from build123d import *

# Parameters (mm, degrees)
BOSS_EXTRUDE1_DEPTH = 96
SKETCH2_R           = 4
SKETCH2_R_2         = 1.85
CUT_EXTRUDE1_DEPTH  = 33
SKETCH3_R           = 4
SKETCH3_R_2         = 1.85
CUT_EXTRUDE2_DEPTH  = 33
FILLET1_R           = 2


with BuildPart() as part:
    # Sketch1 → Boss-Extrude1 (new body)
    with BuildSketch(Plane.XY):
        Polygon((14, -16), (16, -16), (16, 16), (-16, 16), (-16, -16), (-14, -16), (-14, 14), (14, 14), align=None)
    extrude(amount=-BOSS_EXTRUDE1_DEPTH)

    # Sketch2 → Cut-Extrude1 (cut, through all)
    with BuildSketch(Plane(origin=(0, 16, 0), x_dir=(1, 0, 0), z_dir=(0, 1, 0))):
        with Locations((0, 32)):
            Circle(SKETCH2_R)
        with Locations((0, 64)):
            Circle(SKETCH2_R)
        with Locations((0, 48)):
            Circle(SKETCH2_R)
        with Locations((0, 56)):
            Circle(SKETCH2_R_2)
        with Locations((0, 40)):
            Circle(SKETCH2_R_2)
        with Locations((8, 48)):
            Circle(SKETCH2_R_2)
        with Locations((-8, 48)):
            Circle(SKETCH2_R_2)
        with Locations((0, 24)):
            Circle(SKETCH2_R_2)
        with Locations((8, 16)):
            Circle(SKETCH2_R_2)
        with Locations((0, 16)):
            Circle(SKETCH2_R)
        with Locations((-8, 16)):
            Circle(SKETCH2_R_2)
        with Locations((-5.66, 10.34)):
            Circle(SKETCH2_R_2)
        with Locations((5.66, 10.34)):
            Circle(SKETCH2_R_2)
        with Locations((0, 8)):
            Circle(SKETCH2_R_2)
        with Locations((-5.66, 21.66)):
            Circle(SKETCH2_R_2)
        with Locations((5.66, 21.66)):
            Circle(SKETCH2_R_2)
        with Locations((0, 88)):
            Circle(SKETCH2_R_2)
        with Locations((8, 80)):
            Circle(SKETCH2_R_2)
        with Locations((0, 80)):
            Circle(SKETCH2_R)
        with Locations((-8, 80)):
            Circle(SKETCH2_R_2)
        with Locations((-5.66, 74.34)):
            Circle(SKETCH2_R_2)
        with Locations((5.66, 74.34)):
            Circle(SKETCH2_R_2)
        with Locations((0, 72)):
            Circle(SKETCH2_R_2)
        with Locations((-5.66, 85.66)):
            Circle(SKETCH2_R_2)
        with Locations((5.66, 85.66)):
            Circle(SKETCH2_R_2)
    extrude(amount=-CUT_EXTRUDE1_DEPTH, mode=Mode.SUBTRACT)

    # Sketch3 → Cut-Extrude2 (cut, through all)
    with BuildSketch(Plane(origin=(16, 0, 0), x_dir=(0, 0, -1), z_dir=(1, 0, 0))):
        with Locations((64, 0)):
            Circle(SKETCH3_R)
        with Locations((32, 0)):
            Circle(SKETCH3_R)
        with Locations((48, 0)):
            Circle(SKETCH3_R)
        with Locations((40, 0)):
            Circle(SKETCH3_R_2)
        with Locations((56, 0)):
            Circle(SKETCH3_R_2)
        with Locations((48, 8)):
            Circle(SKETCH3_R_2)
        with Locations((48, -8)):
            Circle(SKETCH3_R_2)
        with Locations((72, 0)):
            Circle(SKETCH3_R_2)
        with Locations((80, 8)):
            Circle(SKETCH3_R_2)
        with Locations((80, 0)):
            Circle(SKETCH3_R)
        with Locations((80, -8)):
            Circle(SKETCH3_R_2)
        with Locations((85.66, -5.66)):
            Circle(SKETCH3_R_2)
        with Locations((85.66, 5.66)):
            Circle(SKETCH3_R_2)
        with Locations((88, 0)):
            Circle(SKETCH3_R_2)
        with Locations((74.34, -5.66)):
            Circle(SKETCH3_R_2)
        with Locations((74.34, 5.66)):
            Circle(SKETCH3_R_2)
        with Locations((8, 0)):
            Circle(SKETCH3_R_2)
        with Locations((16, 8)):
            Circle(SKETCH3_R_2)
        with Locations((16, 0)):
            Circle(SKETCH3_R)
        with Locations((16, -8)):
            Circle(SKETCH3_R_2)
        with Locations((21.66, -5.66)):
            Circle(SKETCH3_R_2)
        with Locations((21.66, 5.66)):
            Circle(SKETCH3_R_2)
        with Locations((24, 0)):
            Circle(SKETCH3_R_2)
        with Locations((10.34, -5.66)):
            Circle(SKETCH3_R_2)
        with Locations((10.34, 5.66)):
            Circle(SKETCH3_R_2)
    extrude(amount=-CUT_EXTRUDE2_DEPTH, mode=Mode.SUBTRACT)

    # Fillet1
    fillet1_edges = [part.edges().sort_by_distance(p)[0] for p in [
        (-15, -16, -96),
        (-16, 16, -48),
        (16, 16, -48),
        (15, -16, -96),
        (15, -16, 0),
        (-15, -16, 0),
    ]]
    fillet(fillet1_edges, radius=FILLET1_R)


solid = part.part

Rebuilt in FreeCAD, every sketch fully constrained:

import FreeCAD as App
import Part
import Sketcher

V = App.Vector
Q = App.Units.Quantity


def edges_at(feature, points):
    """Names of the edges that pass closest to the given points."""
    edges = feature.Shape.Edges
    near = lambda p: min(range(len(edges)), key=lambda i: edges[i].distToShape(Part.Vertex(*p))[0])
    return sorted({f"Edge{near(p) + 1}" for p in points})

doc = App.newDocument("Part")
body = doc.addObject("PartDesign::Body", "Body")

# Sketch on XY plane
sketch1 = body.newObject("Sketcher::SketchObject", "Sketch")
sketch1.AttachmentSupport = (doc.getObject("XY_Plane"), [""])
sketch1.MapMode = "FlatFace"
sketch1.addGeometry([
    Part.LineSegment(V(14, -16, 0), V(16, -16, 0)),  # 0
    Part.LineSegment(V(16, -16, 0), V(16, 16, 0)),  # 1
    Part.LineSegment(V(16, 16, 0), V(-16, 16, 0)),  # 2
    Part.LineSegment(V(-16, 16, 0), V(-16, -16, 0)),  # 3
    Part.LineSegment(V(-16, -16, 0), V(-14, -16, 0)),  # 4
    Part.LineSegment(V(-14, -16, 0), V(-14, 14, 0)),  # 5
    Part.LineSegment(V(-14, 14, 0), V(14, 14, 0)),  # 6
    Part.LineSegment(V(14, 14, 0), V(14, -16, 0)),  # 7
], False)
sketch1.addConstraint([
    Sketcher.Constraint("Coincident", 0, 2, 1, 1),
    Sketcher.Constraint("Coincident", 1, 2, 2, 1),
    Sketcher.Constraint("Coincident", 2, 2, 3, 1),
    Sketcher.Constraint("Coincident", 3, 2, 4, 1),
    Sketcher.Constraint("Coincident", 4, 2, 5, 1),
    Sketcher.Constraint("Coincident", 5, 2, 6, 1),
    Sketcher.Constraint("Coincident", 6, 2, 7, 1),
    Sketcher.Constraint("Coincident", 7, 2, 0, 1),
    Sketcher.Constraint("Horizontal", 0),
    Sketcher.Constraint("Vertical", 1),
    Sketcher.Constraint("Horizontal", 2),
    Sketcher.Constraint("Vertical", 3),
    Sketcher.Constraint("Horizontal", 4),
    Sketcher.Constraint("Vertical", 5),
    Sketcher.Constraint("Horizontal", 6),
    Sketcher.Constraint("Vertical", 7),
    Sketcher.Constraint("Symmetric", 0, 2, 2, 2, -1, 1),
    Sketcher.Constraint("Symmetric", 4, 2, 7, 2, -2),
    Sketcher.Constraint("Equal", 2, 1),
    Sketcher.Constraint("DistanceX", 0, 1, 0, 2, Q("2 mm")),
    Sketcher.Constraint("DistanceX", 2, 2, 2, 1, Q("32 mm")),
    Sketcher.Constraint("DistanceY", 5, 1, 5, 2, Q("30 mm")),
])
pad1 = body.newObject("PartDesign::Pad", "Pad")
pad1.Profile = sketch1
pad1.Length = 96
pad1.Reversed = True

# Sketch on XZ plane
sketch2 = body.newObject("Sketcher::SketchObject", "Sketch001")
sketch2.AttachmentSupport = (doc.getObject("XZ_Plane"), [""])
sketch2.MapMode = "FlatFace"
sketch2.AttachmentOffset = App.Placement(V(0, 0, -16), App.Rotation())
sketch2.addGeometry([
    Part.Circle(V(0, -32, 0), V(0, 0, 1), 4),  # 0
    Part.Circle(V(0, -64, 0), V(0, 0, 1), 4),  # 1
    Part.Circle(V(0, -48, 0), V(0, 0, 1), 4),  # 2
    Part.Circle(V(0, -56, 0), V(0, 0, 1), 1.9),  # 3
    Part.Circle(V(0, -40, 0), V(0, 0, 1), 1.9),  # 4
    Part.Circle(V(8, -48, 0), V(0, 0, 1), 1.9),  # 5
    Part.Circle(V(-8, -48, 0), V(0, 0, 1), 1.9),  # 6
    Part.Circle(V(0, -24, 0), V(0, 0, 1), 1.9),  # 7
    Part.Circle(V(8, -16, 0), V(0, 0, 1), 1.9),  # 8
    Part.Circle(V(0, -16, 0), V(0, 0, 1), 4),  # 9
    Part.Circle(V(-8, -16, 0), V(0, 0, 1), 1.9),  # 10
    Part.Circle(V(-5.7, -10.3, 0), V(0, 0, 1), 1.9),  # 11
    Part.Circle(V(5.7, -10.3, 0), V(0, 0, 1), 1.9),  # 12
    Part.Circle(V(0, -8, 0), V(0, 0, 1), 1.9),  # 13
    Part.Circle(V(-5.7, -21.7, 0), V(0, 0, 1), 1.9),  # 14
    Part.Circle(V(5.7, -21.7, 0), V(0, 0, 1), 1.9),  # 15
    Part.Circle(V(0, -88, 0), V(0, 0, 1), 1.9),  # 16
    Part.Circle(V(8, -80, 0), V(0, 0, 1), 1.9),  # 17
    Part.Circle(V(0, -80, 0), V(0, 0, 1), 4),  # 18
    Part.Circle(V(-8, -80, 0), V(0, 0, 1), 1.9),  # 19
    Part.Circle(V(-5.7, -74.3, 0), V(0, 0, 1), 1.9),  # 20
    Part.Circle(V(5.7, -74.3, 0), V(0, 0, 1), 1.9),  # 21
    Part.Circle(V(0, -72, 0), V(0, 0, 1), 1.9),  # 22
    Part.Circle(V(-5.7, -85.7, 0), V(0, 0, 1), 1.9),  # 23
    Part.Circle(V(5.7, -85.7, 0), V(0, 0, 1), 1.9),  # 24
], False)
sketch2.addConstraint([
    Sketcher.Constraint("Equal", 0, 1),
    Sketcher.Constraint("Equal", 1, 2),
    Sketcher.Constraint("Equal", 3, 4),
    Sketcher.Constraint("Equal", 4, 5),
    Sketcher.Constraint("Equal", 5, 6),
    Sketcher.Constraint("Equal", 6, 7),
    Sketcher.Constraint("Equal", 7, 8),
    Sketcher.Constraint("Equal", 2, 9),
    Sketcher.Constraint("Equal", 8, 10),
    Sketcher.Constraint("Equal", 10, 11),
    Sketcher.Constraint("Equal", 11, 12),
    Sketcher.Constraint("Equal", 12, 13),
    Sketcher.Constraint("Equal", 13, 14),
    Sketcher.Constraint("Equal", 14, 15),
    Sketcher.Constraint("Equal", 15, 16),
    Sketcher.Constraint("Equal", 16, 17),
    Sketcher.Constraint("Equal", 9, 18),
    Sketcher.Constraint("Equal", 17, 19),
    Sketcher.Constraint("Equal", 19, 20),
    Sketcher.Constraint("Equal", 20, 21),
    Sketcher.Constraint("Equal", 21, 22),
    Sketcher.Constraint("Equal", 22, 23),
    Sketcher.Constraint("Equal", 23, 24),
    Sketcher.Constraint("Symmetric", 5, 3, 6, 3, -2),
    Sketcher.Constraint("Symmetric", 8, 3, 10, 3, -2),
    Sketcher.Constraint("Symmetric", 11, 3, 12, 3, -2),
    Sketcher.Constraint("Symmetric", 14, 3, 15, 3, -2),
    Sketcher.Constraint("Symmetric", 17, 3, 19, 3, -2),
    Sketcher.Constraint("Symmetric", 20, 3, 21, 3, -2),
    Sketcher.Constraint("Symmetric", 23, 3, 24, 3, -2),
    Sketcher.Constraint("PointOnObject", 0, 3, -2),
    Sketcher.Constraint("PointOnObject", 1, 3, -2),
    Sketcher.Constraint("PointOnObject", 2, 3, -2),
    Sketcher.Constraint("PointOnObject", 3, 3, -2),
    Sketcher.Constraint("PointOnObject", 4, 3, -2),
    Sketcher.Constraint("PointOnObject", 7, 3, -2),
    Sketcher.Constraint("PointOnObject", 9, 3, -2),
    Sketcher.Constraint("PointOnObject", 13, 3, -2),
    Sketcher.Constraint("PointOnObject", 16, 3, -2),
    Sketcher.Constraint("PointOnObject", 18, 3, -2),
    Sketcher.Constraint("PointOnObject", 22, 3, -2),
    Sketcher.Constraint("Horizontal", 2, 3, 5, 3),
    Sketcher.Constraint("Horizontal", 8, 3, 9, 3),
    Sketcher.Constraint("Horizontal", 17, 3, 18, 3),
    Sketcher.Constraint("Vertical", 5, 3, 8, 3),
    Sketcher.Constraint("Vertical", 11, 3, 14, 3),
    Sketcher.Constraint("Vertical", 8, 3, 17, 3),
    Sketcher.Constraint("Vertical", 14, 3, 20, 3),
    Sketcher.Constraint("Vertical", 20, 3, 23, 3),
    Sketcher.Constraint("Diameter", 0, Q("8 mm")),
    Sketcher.Constraint("Diameter", 3, Q("3.7 mm")),
    Sketcher.Constraint("DistanceY", 0, 3, -1, 1, Q("32 mm")),
    Sketcher.Constraint("DistanceY", 1, 3, -1, 1, Q("64 mm")),
    Sketcher.Constraint("DistanceY", 2, 3, -1, 1, Q("48 mm")),
    Sketcher.Constraint("DistanceY", 3, 3, -1, 1, Q("56 mm")),
    Sketcher.Constraint("DistanceY", 4, 3, -1, 1, Q("40 mm")),
    Sketcher.Constraint("DistanceX", -1, 1, 5, 3, Q("8 mm")),
    Sketcher.Constraint("DistanceY", 7, 3, -1, 1, Q("24 mm")),
    Sketcher.Constraint("DistanceY", 8, 3, -1, 1, Q("16 mm")),
    Sketcher.Constraint("DistanceY", 13, 3, -1, 1, Q("8 mm")),
    Sketcher.Constraint("DistanceY", 16, 3, -1, 1, Q("88 mm")),
    Sketcher.Constraint("DistanceY", 17, 3, -1, 1, Q("80 mm")),
    Sketcher.Constraint("DistanceY", 22, 3, -1, 1, Q("72 mm")),
    Sketcher.Constraint("DistanceX", 11, 3, -1, 1, Q("5.66 mm")),
    Sketcher.Constraint("DistanceY", 11, 3, -1, 1, Q("10.34 mm")),
    Sketcher.Constraint("DistanceY", 14, 3, -1, 1, Q("21.66 mm")),
    Sketcher.Constraint("DistanceY", 20, 3, -1, 1, Q("74.34 mm")),
    Sketcher.Constraint("DistanceY", 23, 3, -1, 1, Q("85.66 mm")),
])
pocket1 = body.newObject("PartDesign::Pocket", "Pocket")
pocket1.Profile = sketch2
pocket1.Type = "ThroughAll"
pocket1.Reversed = True

# Sketch on YZ plane
sketch3 = body.newObject("Sketcher::SketchObject", "Sketch002")
sketch3.AttachmentSupport = (doc.getObject("YZ_Plane"), [""])
sketch3.MapMode = "FlatFace"
sketch3.AttachmentOffset = App.Placement(V(0, 0, 16), App.Rotation())
sketch3.addGeometry([
    Part.Circle(V(0, -64, 0), V(0, 0, 1), 4),  # 0
    Part.Circle(V(0, -32, 0), V(0, 0, 1), 4),  # 1
    Part.Circle(V(0, -48, 0), V(0, 0, 1), 4),  # 2
    Part.Circle(V(0, -40, 0), V(0, 0, 1), 1.9),  # 3
    Part.Circle(V(0, -56, 0), V(0, 0, 1), 1.9),  # 4
    Part.Circle(V(8, -48, 0), V(0, 0, 1), 1.9),  # 5
    Part.Circle(V(-8, -48, 0), V(0, 0, 1), 1.9),  # 6
    Part.Circle(V(0, -72, 0), V(0, 0, 1), 1.9),  # 7
    Part.Circle(V(8, -80, 0), V(0, 0, 1), 1.9),  # 8
    Part.Circle(V(0, -80, 0), V(0, 0, 1), 4),  # 9
    Part.Circle(V(-8, -80, 0), V(0, 0, 1), 1.9),  # 10
    Part.Circle(V(-5.7, -85.7, 0), V(0, 0, 1), 1.9),  # 11
    Part.Circle(V(5.7, -85.7, 0), V(0, 0, 1), 1.9),  # 12
    Part.Circle(V(0, -88, 0), V(0, 0, 1), 1.9),  # 13
    Part.Circle(V(-5.7, -74.3, 0), V(0, 0, 1), 1.9),  # 14
    Part.Circle(V(5.7, -74.3, 0), V(0, 0, 1), 1.9),  # 15
    Part.Circle(V(0, -8, 0), V(0, 0, 1), 1.9),  # 16
    Part.Circle(V(8, -16, 0), V(0, 0, 1), 1.9),  # 17
    Part.Circle(V(0, -16, 0), V(0, 0, 1), 4),  # 18
    Part.Circle(V(-8, -16, 0), V(0, 0, 1), 1.9),  # 19
    Part.Circle(V(-5.7, -21.7, 0), V(0, 0, 1), 1.9),  # 20
    Part.Circle(V(5.7, -21.7, 0), V(0, 0, 1), 1.9),  # 21
    Part.Circle(V(0, -24, 0), V(0, 0, 1), 1.9),  # 22
    Part.Circle(V(-5.7, -10.3, 0), V(0, 0, 1), 1.9),  # 23
    Part.Circle(V(5.7, -10.3, 0), V(0, 0, 1), 1.9),  # 24
], False)
sketch3.addConstraint([
    Sketcher.Constraint("Equal", 0, 1),
    Sketcher.Constraint("Equal", 1, 2),
    Sketcher.Constraint("Equal", 3, 4),
    Sketcher.Constraint("Equal", 4, 5),
    Sketcher.Constraint("Equal", 5, 6),
    Sketcher.Constraint("Equal", 6, 7),
    Sketcher.Constraint("Equal", 7, 8),
    Sketcher.Constraint("Equal", 2, 9),
    Sketcher.Constraint("Equal", 8, 10),
    Sketcher.Constraint("Equal", 10, 11),
    Sketcher.Constraint("Equal", 11, 12),
    Sketcher.Constraint("Equal", 12, 13),
    Sketcher.Constraint("Equal", 13, 14),
    Sketcher.Constraint("Equal", 14, 15),
    Sketcher.Constraint("Equal", 15, 16),
    Sketcher.Constraint("Equal", 16, 17),
    Sketcher.Constraint("Equal", 9, 18),
    Sketcher.Constraint("Equal", 17, 19),
    Sketcher.Constraint("Equal", 19, 20),
    Sketcher.Constraint("Equal", 20, 21),
    Sketcher.Constraint("Equal", 21, 22),
    Sketcher.Constraint("Equal", 22, 23),
    Sketcher.Constraint("Equal", 23, 24),
    Sketcher.Constraint("Symmetric", 5, 3, 6, 3, -2),
    Sketcher.Constraint("Symmetric", 8, 3, 10, 3, -2),
    Sketcher.Constraint("Symmetric", 11, 3, 12, 3, -2),
    Sketcher.Constraint("Symmetric", 14, 3, 15, 3, -2),
    Sketcher.Constraint("Symmetric", 17, 3, 19, 3, -2),
    Sketcher.Constraint("Symmetric", 20, 3, 21, 3, -2),
    Sketcher.Constraint("Symmetric", 23, 3, 24, 3, -2),
    Sketcher.Constraint("PointOnObject", 0, 3, -2),
    Sketcher.Constraint("PointOnObject", 1, 3, -2),
    Sketcher.Constraint("PointOnObject", 2, 3, -2),
    Sketcher.Constraint("PointOnObject", 3, 3, -2),
    Sketcher.Constraint("PointOnObject", 4, 3, -2),
    Sketcher.Constraint("PointOnObject", 7, 3, -2),
    Sketcher.Constraint("PointOnObject", 9, 3, -2),
    Sketcher.Constraint("PointOnObject", 13, 3, -2),
    Sketcher.Constraint("PointOnObject", 16, 3, -2),
    Sketcher.Constraint("PointOnObject", 18, 3, -2),
    Sketcher.Constraint("PointOnObject", 22, 3, -2),
    Sketcher.Constraint("Horizontal", 2, 3, 5, 3),
    Sketcher.Constraint("Horizontal", 8, 3, 9, 3),
    Sketcher.Constraint("Horizontal", 17, 3, 18, 3),
    Sketcher.Constraint("Vertical", 5, 3, 8, 3),
    Sketcher.Constraint("Vertical", 11, 3, 14, 3),
    Sketcher.Constraint("Vertical", 8, 3, 17, 3),
    Sketcher.Constraint("Vertical", 14, 3, 20, 3),
    Sketcher.Constraint("Vertical", 20, 3, 23, 3),
    Sketcher.Constraint("Diameter", 0, Q("8 mm")),
    Sketcher.Constraint("Diameter", 3, Q("3.7 mm")),
    Sketcher.Constraint("DistanceY", 0, 3, -1, 1, Q("64 mm")),
    Sketcher.Constraint("DistanceY", 1, 3, -1, 1, Q("32 mm")),
    Sketcher.Constraint("DistanceY", 2, 3, -1, 1, Q("48 mm")),
    Sketcher.Constraint("DistanceY", 3, 3, -1, 1, Q("40 mm")),
    Sketcher.Constraint("DistanceY", 4, 3, -1, 1, Q("56 mm")),
    Sketcher.Constraint("DistanceX", -1, 1, 5, 3, Q("8 mm")),
    Sketcher.Constraint("DistanceY", 7, 3, -1, 1, Q("72 mm")),
    Sketcher.Constraint("DistanceY", 8, 3, -1, 1, Q("80 mm")),
    Sketcher.Constraint("DistanceY", 13, 3, -1, 1, Q("88 mm")),
    Sketcher.Constraint("DistanceY", 16, 3, -1, 1, Q("8 mm")),
    Sketcher.Constraint("DistanceY", 17, 3, -1, 1, Q("16 mm")),
    Sketcher.Constraint("DistanceY", 22, 3, -1, 1, Q("24 mm")),
    Sketcher.Constraint("DistanceX", 11, 3, -1, 1, Q("5.66 mm")),
    Sketcher.Constraint("DistanceY", 11, 3, -1, 1, Q("85.66 mm")),
    Sketcher.Constraint("DistanceY", 14, 3, -1, 1, Q("74.34 mm")),
    Sketcher.Constraint("DistanceY", 20, 3, -1, 1, Q("21.66 mm")),
    Sketcher.Constraint("DistanceY", 23, 3, -1, 1, Q("10.34 mm")),
])
pocket2 = body.newObject("PartDesign::Pocket", "Pocket001")
pocket2.Profile = sketch3
pocket2.Type = "ThroughAll"
doc.recompute()

fillet = body.newObject("PartDesign::Fillet", "Fillet")
fillet.Base = (pocket2, edges_at(pocket2, [
    (-15, -16, -96),
    (-16, 16, -48),
    (16, 16, -48),
    (15, -16, -96),
    (15, -16, 0),
    (-15, -16, 0),
]))
fillet.Radius = 2

doc.recompute()
